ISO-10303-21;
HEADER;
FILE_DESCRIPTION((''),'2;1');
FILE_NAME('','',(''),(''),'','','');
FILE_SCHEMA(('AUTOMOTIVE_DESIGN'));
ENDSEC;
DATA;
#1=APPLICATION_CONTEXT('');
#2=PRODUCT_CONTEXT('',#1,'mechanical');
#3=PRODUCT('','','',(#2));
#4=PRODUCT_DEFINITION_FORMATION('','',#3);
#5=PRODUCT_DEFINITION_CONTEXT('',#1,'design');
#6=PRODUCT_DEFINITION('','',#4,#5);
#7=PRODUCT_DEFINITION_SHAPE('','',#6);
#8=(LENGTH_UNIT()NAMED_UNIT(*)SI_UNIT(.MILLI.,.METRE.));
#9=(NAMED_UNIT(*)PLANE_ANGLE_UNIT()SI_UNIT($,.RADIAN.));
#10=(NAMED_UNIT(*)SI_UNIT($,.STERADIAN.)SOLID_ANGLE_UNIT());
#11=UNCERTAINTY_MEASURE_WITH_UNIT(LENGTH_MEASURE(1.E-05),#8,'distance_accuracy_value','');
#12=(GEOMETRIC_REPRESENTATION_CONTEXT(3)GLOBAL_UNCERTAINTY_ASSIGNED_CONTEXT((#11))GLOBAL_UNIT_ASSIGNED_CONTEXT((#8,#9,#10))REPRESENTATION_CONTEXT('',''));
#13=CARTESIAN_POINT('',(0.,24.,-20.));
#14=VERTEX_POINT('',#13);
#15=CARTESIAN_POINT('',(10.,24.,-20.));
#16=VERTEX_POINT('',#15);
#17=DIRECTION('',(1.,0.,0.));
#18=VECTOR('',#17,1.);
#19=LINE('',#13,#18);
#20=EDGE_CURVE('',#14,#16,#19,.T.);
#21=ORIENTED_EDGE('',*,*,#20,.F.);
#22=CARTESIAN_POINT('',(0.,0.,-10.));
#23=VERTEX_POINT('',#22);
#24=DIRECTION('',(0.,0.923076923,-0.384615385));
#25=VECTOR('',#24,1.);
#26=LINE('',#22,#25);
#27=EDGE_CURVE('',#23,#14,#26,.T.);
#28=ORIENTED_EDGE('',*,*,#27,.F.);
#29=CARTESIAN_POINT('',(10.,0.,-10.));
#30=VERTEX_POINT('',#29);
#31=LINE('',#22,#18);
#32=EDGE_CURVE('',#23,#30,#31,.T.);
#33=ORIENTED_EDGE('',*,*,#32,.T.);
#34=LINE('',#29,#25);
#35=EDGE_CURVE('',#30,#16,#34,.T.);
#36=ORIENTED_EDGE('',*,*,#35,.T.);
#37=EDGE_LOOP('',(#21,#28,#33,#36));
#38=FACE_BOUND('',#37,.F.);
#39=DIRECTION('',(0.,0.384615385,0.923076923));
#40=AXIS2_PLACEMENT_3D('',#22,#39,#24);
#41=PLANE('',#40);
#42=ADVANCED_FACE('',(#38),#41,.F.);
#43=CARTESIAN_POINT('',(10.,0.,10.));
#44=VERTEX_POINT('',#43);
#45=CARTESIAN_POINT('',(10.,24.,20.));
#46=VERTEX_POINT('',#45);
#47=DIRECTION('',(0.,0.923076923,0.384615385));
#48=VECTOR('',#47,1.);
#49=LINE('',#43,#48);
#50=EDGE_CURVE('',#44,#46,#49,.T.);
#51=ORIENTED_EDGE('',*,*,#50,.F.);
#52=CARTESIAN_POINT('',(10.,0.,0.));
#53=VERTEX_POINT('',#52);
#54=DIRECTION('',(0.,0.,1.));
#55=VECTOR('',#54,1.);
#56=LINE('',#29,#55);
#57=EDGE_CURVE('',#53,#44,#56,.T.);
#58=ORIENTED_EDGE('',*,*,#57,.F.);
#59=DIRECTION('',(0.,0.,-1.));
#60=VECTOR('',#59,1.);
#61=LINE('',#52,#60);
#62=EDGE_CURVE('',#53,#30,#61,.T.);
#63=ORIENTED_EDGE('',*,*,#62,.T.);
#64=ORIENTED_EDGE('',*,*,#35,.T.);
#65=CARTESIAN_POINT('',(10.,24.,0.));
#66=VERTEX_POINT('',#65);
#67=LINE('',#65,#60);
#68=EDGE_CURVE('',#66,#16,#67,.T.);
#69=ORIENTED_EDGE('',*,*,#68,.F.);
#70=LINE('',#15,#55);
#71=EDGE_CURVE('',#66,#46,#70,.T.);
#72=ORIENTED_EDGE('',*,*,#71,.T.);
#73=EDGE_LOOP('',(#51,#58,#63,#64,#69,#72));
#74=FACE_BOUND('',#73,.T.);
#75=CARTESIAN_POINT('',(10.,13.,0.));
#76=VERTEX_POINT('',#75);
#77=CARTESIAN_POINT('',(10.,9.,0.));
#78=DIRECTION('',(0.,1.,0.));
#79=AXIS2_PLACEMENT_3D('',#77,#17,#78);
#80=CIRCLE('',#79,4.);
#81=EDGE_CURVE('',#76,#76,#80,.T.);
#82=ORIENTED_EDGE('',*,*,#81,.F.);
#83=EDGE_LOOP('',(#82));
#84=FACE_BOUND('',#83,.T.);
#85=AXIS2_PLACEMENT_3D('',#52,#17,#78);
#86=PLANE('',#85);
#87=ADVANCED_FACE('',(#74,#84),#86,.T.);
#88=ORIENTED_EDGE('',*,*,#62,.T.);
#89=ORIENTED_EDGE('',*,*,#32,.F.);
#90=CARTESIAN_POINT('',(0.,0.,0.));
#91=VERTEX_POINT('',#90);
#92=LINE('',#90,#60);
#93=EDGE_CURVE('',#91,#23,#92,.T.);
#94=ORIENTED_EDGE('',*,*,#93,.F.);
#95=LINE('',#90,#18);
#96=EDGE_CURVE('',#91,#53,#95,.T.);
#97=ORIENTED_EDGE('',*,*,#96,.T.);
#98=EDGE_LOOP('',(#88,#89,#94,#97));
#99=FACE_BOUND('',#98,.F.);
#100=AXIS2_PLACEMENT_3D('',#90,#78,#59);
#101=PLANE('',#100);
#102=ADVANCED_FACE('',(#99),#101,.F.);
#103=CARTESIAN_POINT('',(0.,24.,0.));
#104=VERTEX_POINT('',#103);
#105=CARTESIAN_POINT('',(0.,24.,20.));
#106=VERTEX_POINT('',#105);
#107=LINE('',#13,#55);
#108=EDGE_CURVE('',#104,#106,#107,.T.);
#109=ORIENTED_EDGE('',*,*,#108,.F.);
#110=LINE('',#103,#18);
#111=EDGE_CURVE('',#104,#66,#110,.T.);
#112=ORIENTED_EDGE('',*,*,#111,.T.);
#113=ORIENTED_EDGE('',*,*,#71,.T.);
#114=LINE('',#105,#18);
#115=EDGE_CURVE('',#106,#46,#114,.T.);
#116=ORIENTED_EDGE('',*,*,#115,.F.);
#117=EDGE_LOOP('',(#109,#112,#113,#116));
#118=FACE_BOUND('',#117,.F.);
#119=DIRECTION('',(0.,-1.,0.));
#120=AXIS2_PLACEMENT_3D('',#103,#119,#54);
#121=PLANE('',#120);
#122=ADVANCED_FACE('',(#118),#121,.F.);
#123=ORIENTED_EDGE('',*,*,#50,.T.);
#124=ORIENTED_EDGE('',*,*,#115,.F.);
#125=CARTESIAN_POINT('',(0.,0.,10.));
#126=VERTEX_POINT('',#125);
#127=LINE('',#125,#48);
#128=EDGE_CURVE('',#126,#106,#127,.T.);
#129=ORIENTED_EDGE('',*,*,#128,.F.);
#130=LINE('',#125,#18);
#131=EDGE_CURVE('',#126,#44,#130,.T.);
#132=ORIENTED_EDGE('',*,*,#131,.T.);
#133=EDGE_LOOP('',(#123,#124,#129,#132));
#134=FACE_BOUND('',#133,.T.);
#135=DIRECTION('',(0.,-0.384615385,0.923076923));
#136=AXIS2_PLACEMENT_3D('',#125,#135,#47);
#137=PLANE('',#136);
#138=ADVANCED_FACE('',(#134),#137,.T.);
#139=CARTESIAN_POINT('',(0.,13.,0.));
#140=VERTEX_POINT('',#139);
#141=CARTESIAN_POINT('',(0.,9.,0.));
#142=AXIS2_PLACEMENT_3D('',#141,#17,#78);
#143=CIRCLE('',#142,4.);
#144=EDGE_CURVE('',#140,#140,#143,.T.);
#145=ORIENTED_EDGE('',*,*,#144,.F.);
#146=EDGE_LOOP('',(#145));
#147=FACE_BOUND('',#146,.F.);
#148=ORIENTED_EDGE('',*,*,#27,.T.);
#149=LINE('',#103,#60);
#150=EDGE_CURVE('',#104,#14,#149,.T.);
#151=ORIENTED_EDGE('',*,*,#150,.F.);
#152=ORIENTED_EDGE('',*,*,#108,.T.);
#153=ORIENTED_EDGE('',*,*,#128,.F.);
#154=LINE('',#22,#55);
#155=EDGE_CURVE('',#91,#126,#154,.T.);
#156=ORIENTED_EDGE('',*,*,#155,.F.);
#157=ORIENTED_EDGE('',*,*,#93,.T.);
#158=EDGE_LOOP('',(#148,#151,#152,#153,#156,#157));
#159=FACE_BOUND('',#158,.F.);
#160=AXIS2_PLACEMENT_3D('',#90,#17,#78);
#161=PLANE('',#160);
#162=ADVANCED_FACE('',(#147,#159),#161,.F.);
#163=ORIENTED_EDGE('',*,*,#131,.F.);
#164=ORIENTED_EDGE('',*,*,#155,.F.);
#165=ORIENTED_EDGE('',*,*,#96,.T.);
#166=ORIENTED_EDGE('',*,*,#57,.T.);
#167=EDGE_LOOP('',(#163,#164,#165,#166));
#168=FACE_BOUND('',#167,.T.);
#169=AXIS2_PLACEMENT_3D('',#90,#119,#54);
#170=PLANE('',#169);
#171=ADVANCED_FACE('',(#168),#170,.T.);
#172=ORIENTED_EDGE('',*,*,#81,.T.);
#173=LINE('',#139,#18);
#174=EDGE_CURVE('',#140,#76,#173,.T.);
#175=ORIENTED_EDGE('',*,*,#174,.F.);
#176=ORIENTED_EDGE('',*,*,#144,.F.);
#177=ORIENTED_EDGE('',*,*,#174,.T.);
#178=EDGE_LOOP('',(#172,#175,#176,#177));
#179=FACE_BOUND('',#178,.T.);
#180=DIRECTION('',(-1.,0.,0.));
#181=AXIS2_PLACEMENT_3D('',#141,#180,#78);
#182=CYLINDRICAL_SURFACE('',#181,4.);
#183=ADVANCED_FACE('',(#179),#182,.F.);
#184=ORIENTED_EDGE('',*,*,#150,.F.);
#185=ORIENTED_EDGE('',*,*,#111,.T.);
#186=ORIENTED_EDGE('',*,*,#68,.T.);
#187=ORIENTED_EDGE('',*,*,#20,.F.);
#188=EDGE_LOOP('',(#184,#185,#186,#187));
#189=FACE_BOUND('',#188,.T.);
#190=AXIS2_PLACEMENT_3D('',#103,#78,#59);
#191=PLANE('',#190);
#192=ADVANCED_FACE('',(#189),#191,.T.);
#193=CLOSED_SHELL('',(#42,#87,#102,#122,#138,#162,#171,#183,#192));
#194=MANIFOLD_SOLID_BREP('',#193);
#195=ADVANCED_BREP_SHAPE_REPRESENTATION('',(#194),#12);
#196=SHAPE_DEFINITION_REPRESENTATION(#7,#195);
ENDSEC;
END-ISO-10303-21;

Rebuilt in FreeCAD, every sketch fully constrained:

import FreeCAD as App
import Part
import Sketcher
from FreeCAD import Vector


def add_polygon(sketch, points):
    """Adds a closed chain of lines whose ends are joined by coincident constraints."""
    first, n = sketch.GeometryCount, len(points)
    for a, b in zip(points, points[1:] + points[:1]):
        sketch.addGeometry(Part.LineSegment(App.Vector(*a, 0), App.Vector(*b, 0)), False)
    for i in range(n):
        sketch.addConstraint(Sketcher.Constraint("Coincident", first + i, 2, first + (i + 1) % n, 1))

doc = App.newDocument("Part")
body = doc.addObject("PartDesign::Body", "Body")

# Sketch on YZ plane
sketch1 = body.newObject("Sketcher::SketchObject", "Sketch")
sketch1.AttachmentSupport = (doc.getObject("YZ_Plane"), [""])
sketch1.MapMode = "FlatFace"
add_polygon(sketch1, [(0, 10), (0, -10), (24, -20), (24, 20)])  # lines 0-3
sketch1.addGeometry(Part.Circle(Vector(9, 0, 0), Vector(0, 0, 1), 4), False)  # 4
sketch1.addConstraint([
    Sketcher.Constraint("Vertical", 0),
    Sketcher.Constraint("Vertical", 2),
    Sketcher.Constraint("Symmetric", 0, 2, 3, 2, -1, 1),
    Sketcher.Constraint("PointOnObject", 4, 3, -1),
    Sketcher.Constraint("Equal", 1, 3),
    Sketcher.Constraint("Diameter", 4, 8.0),
    Sketcher.Constraint("DistanceY", 0, 2, 0, 1, 20.0),
    Sketcher.Constraint("DistanceY", 2, 1, 2, 2, 40.0),
    Sketcher.Constraint("Distance", 1, 26.0),
    Sketcher.Constraint("DistanceX", -1, 1, 4, 3, 9.0),
])
pad1 = body.newObject("PartDesign::Pad", "Pad")
pad1.Profile = sketch1
pad1.Length = 10

doc.recompute()
